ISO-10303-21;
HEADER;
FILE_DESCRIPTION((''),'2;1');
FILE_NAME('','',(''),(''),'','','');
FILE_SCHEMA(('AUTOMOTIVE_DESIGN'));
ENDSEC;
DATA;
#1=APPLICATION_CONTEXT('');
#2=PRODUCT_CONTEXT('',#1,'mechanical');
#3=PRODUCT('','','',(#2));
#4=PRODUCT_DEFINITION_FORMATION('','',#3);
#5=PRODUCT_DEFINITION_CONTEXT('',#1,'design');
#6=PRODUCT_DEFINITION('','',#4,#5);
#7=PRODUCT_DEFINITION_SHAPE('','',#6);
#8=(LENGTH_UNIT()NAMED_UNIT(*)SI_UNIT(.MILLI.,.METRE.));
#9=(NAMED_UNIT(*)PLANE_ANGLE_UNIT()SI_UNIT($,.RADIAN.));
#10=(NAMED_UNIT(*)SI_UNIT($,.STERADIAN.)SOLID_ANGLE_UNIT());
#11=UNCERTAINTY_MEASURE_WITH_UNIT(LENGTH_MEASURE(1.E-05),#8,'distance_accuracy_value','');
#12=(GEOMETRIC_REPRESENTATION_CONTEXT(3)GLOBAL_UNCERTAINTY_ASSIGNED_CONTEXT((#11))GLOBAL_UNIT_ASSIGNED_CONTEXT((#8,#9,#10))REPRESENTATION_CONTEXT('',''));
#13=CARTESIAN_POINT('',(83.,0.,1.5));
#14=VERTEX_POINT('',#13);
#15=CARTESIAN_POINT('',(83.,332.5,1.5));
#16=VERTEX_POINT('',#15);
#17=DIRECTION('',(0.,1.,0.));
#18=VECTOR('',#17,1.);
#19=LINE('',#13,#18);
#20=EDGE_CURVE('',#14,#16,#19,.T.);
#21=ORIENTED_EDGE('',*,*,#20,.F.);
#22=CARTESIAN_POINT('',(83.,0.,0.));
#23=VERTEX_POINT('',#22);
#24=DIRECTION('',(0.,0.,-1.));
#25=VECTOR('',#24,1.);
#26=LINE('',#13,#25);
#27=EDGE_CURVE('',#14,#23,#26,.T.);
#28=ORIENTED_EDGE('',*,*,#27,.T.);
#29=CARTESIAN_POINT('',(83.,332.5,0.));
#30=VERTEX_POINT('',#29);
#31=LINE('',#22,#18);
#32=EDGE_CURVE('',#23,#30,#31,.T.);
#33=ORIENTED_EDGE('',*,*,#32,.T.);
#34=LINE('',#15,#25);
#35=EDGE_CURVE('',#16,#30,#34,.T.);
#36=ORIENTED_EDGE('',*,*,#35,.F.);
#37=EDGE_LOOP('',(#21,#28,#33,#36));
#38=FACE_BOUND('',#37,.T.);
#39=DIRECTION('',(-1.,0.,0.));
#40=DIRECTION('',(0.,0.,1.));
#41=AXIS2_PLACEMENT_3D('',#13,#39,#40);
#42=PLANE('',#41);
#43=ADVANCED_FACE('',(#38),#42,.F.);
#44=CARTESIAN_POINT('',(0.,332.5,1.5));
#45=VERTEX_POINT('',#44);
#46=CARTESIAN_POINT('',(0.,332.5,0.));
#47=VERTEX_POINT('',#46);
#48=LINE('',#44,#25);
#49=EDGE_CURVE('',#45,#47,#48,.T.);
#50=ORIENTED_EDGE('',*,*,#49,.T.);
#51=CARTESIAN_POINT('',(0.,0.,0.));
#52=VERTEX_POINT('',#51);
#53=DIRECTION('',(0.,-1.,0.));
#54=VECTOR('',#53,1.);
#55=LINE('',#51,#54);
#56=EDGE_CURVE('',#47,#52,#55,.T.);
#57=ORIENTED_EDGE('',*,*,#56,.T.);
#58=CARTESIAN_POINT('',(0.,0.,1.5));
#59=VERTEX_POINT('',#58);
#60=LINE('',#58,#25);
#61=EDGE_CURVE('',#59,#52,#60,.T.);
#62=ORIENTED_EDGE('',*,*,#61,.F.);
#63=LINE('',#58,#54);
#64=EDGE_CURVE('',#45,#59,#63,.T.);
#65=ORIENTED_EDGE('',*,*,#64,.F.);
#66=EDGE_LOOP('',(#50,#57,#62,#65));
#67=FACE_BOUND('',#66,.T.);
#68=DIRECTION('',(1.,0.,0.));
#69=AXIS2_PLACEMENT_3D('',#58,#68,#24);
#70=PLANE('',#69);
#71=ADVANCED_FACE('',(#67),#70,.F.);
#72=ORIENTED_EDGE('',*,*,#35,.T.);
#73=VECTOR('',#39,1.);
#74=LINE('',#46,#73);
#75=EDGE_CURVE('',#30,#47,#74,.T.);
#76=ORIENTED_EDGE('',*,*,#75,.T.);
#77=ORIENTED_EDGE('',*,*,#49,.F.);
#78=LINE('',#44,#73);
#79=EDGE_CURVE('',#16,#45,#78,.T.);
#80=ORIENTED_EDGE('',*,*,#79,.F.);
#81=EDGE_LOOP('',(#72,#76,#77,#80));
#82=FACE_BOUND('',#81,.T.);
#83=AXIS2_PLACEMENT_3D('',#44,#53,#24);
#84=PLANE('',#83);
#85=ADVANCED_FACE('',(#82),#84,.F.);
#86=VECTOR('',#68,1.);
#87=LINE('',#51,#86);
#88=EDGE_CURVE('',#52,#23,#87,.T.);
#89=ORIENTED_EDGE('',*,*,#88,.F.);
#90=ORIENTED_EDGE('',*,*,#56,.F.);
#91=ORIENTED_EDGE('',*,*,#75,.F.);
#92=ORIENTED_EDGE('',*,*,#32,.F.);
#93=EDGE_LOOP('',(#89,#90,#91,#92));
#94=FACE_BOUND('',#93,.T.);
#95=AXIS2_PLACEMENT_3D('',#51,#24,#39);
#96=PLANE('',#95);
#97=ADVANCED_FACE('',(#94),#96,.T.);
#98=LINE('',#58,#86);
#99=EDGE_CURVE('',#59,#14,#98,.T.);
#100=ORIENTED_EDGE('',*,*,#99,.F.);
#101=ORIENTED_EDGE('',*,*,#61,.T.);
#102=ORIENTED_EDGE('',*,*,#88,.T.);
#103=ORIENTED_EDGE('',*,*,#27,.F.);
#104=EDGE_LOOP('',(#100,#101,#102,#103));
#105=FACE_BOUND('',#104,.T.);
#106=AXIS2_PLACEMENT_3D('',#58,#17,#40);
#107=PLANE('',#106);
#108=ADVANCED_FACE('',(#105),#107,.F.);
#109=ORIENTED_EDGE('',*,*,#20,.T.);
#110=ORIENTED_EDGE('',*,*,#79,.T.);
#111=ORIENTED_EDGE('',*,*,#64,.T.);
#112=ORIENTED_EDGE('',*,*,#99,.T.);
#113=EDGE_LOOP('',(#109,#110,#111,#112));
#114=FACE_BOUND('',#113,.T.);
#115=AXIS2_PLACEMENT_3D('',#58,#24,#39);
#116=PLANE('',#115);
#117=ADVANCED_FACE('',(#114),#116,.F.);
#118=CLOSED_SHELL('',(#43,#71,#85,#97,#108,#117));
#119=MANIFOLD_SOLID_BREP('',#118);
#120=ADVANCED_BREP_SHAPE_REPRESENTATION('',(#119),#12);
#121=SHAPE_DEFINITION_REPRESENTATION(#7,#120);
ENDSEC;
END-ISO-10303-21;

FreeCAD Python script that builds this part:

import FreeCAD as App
import Part
import Sketcher

V = App.Vector

doc = App.newDocument("Part")
params = doc.addObject("Spreadsheet::Sheet", "Params")
for row, (alias, value) in enumerate([
    ("sketch1_width", "83 mm"),
    ("sketch1_height", "332.5 mm"),
    ("pad1_length", "1.5 mm"),
], start=1):
    params.set(f"A{row}", alias)
    params.set(f"B{row}", "=" + value)
    params.setAlias(f"B{row}", alias)

body = doc.addObject("PartDesign::Body", "Body")

# Sketch on XY plane
sketch1 = body.newObject("Sketcher::SketchObject", "Sketch")
sketch1.AttachmentSupport = (doc.getObject("XY_Plane"), [""])
sketch1.MapMode = "FlatFace"
sketch1.addGeometry([
    Part.LineSegment(V(0, 332, 0), V(0, 0, 0)),
    Part.LineSegment(V(0, 0, 0), V(83, 0, 0)),
    Part.LineSegment(V(83, 0, 0), V(83, 332, 0)),
    Part.LineSegment(V(83, 332, 0), V(0, 332, 0)),
], False)
sketch1.addConstraint([
    Sketcher.Constraint("Coincident", 0, 2, 1, 1),
    Sketcher.Constraint("Coincident", 1, 2, 2, 1),
    Sketcher.Constraint("Coincident", 2, 2, 3, 1),
    Sketcher.Constraint("Coincident", 3, 2, 0, 1),
    Sketcher.Constraint("Vertical", 0),
    Sketcher.Constraint("Horizontal", 1),
    Sketcher.Constraint("Vertical", 2),
    Sketcher.Constraint("Horizontal", 3),
    Sketcher.Constraint("Coincident", 0, 2, -1, 1),
    Sketcher.Constraint("DistanceX", 1, 1, 1, 2, 83.0),
    Sketcher.Constraint("DistanceY", 0, 2, 0, 1, 332.5),
])
sketch1.setExpression("Constraints[9]", "Params.sketch1_width")
sketch1.setExpression("Constraints[10]", "Params.sketch1_height")
pad1 = body.newObject("PartDesign::Pad", "Pad")
pad1.Profile = sketch1
pad1.setExpression("Length", "Params.pad1_length")

doc.recompute()
